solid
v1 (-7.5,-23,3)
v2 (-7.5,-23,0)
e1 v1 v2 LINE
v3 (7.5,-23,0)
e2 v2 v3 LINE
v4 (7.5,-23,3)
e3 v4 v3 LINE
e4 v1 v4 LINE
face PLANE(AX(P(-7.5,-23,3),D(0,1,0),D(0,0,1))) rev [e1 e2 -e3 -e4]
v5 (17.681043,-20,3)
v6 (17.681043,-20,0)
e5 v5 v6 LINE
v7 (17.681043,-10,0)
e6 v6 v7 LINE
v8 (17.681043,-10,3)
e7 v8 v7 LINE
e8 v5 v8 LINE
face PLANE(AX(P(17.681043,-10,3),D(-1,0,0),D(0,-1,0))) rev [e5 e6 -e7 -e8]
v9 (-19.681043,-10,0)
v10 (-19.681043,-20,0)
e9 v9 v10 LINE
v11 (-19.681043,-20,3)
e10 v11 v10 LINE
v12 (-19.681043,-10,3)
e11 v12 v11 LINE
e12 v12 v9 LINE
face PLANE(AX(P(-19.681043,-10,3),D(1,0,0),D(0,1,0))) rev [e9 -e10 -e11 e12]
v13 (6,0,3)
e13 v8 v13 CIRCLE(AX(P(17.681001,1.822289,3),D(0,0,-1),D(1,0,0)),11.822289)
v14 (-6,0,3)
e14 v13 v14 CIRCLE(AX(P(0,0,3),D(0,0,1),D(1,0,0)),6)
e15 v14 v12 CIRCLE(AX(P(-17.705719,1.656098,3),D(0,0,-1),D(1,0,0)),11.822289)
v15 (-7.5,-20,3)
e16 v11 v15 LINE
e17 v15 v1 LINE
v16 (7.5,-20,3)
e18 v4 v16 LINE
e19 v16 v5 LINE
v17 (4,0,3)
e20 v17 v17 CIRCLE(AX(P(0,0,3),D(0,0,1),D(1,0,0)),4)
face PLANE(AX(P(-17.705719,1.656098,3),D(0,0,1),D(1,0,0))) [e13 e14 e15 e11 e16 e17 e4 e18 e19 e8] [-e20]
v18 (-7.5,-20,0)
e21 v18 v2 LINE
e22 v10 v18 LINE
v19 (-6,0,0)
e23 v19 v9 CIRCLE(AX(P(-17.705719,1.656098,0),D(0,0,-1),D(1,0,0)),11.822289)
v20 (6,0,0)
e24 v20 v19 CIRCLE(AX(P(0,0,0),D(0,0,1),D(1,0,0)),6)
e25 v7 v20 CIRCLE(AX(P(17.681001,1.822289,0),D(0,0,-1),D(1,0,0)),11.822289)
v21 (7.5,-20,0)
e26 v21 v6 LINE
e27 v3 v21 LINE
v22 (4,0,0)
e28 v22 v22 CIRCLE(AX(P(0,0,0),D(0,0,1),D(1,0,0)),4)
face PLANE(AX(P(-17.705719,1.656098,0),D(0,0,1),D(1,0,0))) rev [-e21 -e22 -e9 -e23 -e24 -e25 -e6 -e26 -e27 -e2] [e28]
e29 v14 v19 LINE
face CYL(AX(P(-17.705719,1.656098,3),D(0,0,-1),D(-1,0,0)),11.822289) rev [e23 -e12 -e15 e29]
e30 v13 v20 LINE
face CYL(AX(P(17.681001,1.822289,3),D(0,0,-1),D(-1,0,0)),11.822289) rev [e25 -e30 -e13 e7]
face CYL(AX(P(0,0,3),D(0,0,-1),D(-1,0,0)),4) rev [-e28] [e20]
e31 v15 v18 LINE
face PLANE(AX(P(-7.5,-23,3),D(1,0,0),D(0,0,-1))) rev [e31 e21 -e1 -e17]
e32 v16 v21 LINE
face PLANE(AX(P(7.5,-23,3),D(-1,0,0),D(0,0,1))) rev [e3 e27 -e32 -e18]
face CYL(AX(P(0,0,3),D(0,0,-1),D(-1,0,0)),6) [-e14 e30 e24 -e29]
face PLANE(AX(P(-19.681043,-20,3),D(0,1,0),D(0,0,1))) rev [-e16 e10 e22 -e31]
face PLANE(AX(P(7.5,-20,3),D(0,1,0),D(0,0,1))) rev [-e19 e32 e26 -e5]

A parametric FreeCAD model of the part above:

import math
import FreeCAD as App
import Part
import Sketcher
Q = App.Units.Quantity

doc = App.newDocument("Part")
params = doc.addObject("Spreadsheet::Sheet", "Params")
for row, (alias, value) in enumerate([
    ("sketch1_diameter", "8 mm"),
    ("sketch1_radius", "6 mm"),
    ("sketch1_width", "15 mm"),
    ("sketch1_height", "10 mm"),
    ("sketch1_height2", "3 mm"),
    ("pad1_length", "3 mm"),
], start=1):
    params.set(f"A{row}", alias)
    params.set(f"B{row}", "=" + value)
    params.setAlias(f"B{row}", alias)

body = doc.addObject("PartDesign::Body", "Body")

# Sketch on XY plane
sketch1 = doc.addObject("Sketcher::SketchObject", "Sketch")
body.addObject(sketch1)
sketch1.AttachmentSupport = (doc.XY_Plane, [""])
sketch1.MapMode = "FlatFace"
sketch1.addGeometry([
    Part.LineSegment(App.Vector(7.5, -20, 0), App.Vector(17.7, -20, 0)),  # 0
    Part.LineSegment(App.Vector(17.7, -20, 0), App.Vector(17.7, -10, 0)),  # 1
    Part.ArcOfCircle(Part.Circle(App.Vector(17.7, 1.8, 0), App.Vector(0, 0, 1), 11.8), math.radians(-171), math.radians(-90)),  # 2
    Part.ArcOfCircle(Part.Circle(App.Vector(0, 0, 0), App.Vector(0, 0, 1), 6), math.radians(0), math.radians(180)),  # 3
    Part.ArcOfCircle(Part.Circle(App.Vector(-17.7, 1.7, 0), App.Vector(0, 0, 1), 11.8), math.radians(-100), math.radians(-8)),  # 4
    Part.LineSegment(App.Vector(-19.7, -10, 0), App.Vector(-19.7, -20, 0)),  # 5
    Part.LineSegment(App.Vector(-19.7, -20, 0), App.Vector(-7.5, -20, 0)),  # 6
    Part.LineSegment(App.Vector(-7.5, -20, 0), App.Vector(-7.5, -23, 0)),  # 7
    Part.LineSegment(App.Vector(-7.5, -23, 0), App.Vector(7.5, -23, 0)),  # 8
    Part.LineSegment(App.Vector(7.5, -23, 0), App.Vector(7.5, -20, 0)),  # 9
    Part.Circle(App.Vector(0, 0, 0), App.Vector(0, 0, 1), 4),  # 10
], False)
sketch1.addConstraint([
    Sketcher.Constraint("Coincident", 0, 2, 1, 1),
    Sketcher.Constraint("Coincident", 1, 2, 2, 2),
    Sketcher.Constraint("Coincident", 2, 1, 3, 1),
    Sketcher.Constraint("Coincident", 3, 2, 4, 2),
    Sketcher.Constraint("Coincident", 4, 1, 5, 1),
    Sketcher.Constraint("Coincident", 5, 2, 6, 1),
    Sketcher.Constraint("Coincident", 6, 2, 7, 1),
    Sketcher.Constraint("Coincident", 7, 2, 8, 1),
    Sketcher.Constraint("Coincident", 8, 2, 9, 1),
    Sketcher.Constraint("Coincident", 9, 2, 0, 1),
    Sketcher.Constraint("Horizontal", 0),
    Sketcher.Constraint("Vertical", 1),
    Sketcher.Constraint("Vertical", 5),
    Sketcher.Constraint("Horizontal", 6),
    Sketcher.Constraint("Vertical", 7),
    Sketcher.Constraint("Horizontal", 8),
    Sketcher.Constraint("Vertical", 9),
    Sketcher.Constraint("Coincident", 3, 3, -1, 1),
    Sketcher.Constraint("Coincident", 10, 3, -1, 1),
    Sketcher.Constraint("Equal", 2, 4),
    Sketcher.Constraint("Symmetric", 6, 2, 9, 2, -2),
    Sketcher.Constraint("PointOnObject", 2, 1, -1),
    Sketcher.Constraint("PointOnObject", 3, 2, -1),
    Sketcher.Constraint("Horizontal", 1, 2, 4, 1),
    Sketcher.Constraint("Diameter", 10, Q("8 mm")),
    Sketcher.Constraint("Radius", 3, Q("6 mm")),
    Sketcher.Constraint("DistanceX", 8, 1, 8, 2, Q("15 mm")),
    Sketcher.Constraint("DistanceY", 1, 1, 1, 2, Q("10 mm")),
    Sketcher.Constraint("DistanceY", 7, 2, 7, 1, Q("3 mm")),
    Sketcher.Constraint("DistanceY", 0, 2, -1, 1, Q("20 mm")),
    Sketcher.Constraint("Radius", 2, Q("11.822289 mm")),
    Sketcher.Constraint("DistanceX", 0, 1, 0, 2, Q("10.181043 mm")),
    Sketcher.Constraint("DistanceX", 6, 1, 6, 2, Q("12.181043 mm")),
])
sketch1.setExpression("Constraints[24]", "Params.sketch1_diameter")
sketch1.setExpression("Constraints[25]", "Params.sketch1_radius")
sketch1.setExpression("Constraints[26]", "Params.sketch1_width")
sketch1.setExpression("Constraints[27]", "Params.sketch1_height")
sketch1.setExpression("Constraints[28]", "Params.sketch1_height2")
pad1 = doc.addObject("PartDesign::Pad", "Pad")
body.addObject(pad1)
pad1.Profile = sketch1
pad1.setExpression("Length", "Params.pad1_length")

doc.recompute()
